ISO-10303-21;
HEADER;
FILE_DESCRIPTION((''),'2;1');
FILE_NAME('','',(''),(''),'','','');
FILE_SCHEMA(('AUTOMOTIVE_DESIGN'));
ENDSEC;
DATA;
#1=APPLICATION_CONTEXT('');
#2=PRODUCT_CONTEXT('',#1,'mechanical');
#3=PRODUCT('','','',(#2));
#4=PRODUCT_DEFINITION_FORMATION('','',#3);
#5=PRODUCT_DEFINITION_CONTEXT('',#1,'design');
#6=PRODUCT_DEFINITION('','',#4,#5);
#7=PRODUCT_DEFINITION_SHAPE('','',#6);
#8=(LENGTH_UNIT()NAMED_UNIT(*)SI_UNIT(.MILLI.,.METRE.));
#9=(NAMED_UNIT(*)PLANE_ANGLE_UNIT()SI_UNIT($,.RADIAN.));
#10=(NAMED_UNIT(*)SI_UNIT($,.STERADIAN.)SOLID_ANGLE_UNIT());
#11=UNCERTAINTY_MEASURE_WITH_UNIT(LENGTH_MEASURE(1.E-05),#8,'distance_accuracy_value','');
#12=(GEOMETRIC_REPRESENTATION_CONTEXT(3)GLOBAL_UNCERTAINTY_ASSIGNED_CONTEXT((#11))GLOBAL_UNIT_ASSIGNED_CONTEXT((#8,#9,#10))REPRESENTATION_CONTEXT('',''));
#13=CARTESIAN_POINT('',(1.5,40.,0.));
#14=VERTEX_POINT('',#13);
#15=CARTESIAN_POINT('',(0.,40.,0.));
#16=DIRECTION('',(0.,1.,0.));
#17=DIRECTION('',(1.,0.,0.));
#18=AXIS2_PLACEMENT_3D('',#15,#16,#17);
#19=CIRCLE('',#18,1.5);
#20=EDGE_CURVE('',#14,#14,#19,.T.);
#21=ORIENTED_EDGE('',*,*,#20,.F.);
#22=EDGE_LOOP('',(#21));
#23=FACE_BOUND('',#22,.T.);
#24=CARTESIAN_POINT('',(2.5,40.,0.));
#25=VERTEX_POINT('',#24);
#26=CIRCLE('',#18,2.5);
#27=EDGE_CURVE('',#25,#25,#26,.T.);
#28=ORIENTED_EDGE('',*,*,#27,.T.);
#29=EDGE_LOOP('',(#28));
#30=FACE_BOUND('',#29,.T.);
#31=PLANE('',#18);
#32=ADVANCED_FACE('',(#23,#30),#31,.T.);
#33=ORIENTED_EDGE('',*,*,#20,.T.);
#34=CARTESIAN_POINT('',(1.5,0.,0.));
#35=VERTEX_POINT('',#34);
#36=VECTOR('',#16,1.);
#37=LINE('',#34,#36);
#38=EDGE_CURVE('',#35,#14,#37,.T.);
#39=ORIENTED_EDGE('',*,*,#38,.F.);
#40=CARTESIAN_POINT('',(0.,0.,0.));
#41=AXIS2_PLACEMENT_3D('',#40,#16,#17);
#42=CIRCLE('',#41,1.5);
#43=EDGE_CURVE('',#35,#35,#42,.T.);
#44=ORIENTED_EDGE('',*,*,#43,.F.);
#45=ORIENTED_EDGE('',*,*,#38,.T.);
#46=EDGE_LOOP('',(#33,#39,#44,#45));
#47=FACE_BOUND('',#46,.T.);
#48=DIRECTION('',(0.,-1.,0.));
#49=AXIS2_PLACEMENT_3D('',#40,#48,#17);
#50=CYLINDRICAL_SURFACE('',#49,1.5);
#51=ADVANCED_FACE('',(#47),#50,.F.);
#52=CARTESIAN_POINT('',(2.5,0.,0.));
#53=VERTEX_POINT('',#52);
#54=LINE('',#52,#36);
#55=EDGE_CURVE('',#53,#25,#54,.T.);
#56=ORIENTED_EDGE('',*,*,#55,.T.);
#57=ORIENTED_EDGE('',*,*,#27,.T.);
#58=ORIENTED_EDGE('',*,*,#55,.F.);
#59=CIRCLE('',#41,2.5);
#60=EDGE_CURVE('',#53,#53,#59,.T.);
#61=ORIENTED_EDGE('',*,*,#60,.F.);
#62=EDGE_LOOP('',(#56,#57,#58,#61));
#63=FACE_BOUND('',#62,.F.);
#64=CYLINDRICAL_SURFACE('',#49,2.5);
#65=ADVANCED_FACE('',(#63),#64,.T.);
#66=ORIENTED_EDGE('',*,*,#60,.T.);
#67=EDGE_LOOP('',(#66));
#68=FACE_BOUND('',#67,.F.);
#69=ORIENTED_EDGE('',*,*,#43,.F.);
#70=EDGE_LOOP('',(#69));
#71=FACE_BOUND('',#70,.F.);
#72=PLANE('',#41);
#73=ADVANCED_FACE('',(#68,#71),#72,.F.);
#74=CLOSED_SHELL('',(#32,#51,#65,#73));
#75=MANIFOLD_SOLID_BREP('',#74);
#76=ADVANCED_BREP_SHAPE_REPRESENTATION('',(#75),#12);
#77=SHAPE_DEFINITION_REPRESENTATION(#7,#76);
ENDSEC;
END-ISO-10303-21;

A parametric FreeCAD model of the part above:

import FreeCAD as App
import Part
import Sketcher
from FreeCAD import Vector
Q = App.Units.Quantity

doc = App.newDocument("Part")
body = doc.addObject("PartDesign::Body", "Body")

# Sketch on XZ plane
sketch1 = body.newObject("Sketcher::SketchObject", "Sketch")
sketch1.AttachmentSupport = (doc.getObject("XZ_Plane"), [""])
sketch1.MapMode = "FlatFace"
sketch1.addGeometry([
    Part.Circle(Vector(0, 0, 0), Vector(0, 0, 1), 2.5),
    Part.Circle(Vector(0, 0, 0), Vector(0, 0, 1), 1.5),
], False)
sketch1.addConstraint([
    Sketcher.Constraint("Coincident", 0, 3, -1, 1),
    Sketcher.Constraint("Coincident", 1, 3, -1, 1),
    Sketcher.Constraint("Diameter", 0, Q("5 mm")),
    Sketcher.Constraint("Diameter", 1, Q("3 mm")),
])
pad1 = body.newObject("PartDesign::Pad", "Pad")
pad1.Profile = sketch1
pad1.Length = 40
pad1.Reversed = True

doc.recompute()
